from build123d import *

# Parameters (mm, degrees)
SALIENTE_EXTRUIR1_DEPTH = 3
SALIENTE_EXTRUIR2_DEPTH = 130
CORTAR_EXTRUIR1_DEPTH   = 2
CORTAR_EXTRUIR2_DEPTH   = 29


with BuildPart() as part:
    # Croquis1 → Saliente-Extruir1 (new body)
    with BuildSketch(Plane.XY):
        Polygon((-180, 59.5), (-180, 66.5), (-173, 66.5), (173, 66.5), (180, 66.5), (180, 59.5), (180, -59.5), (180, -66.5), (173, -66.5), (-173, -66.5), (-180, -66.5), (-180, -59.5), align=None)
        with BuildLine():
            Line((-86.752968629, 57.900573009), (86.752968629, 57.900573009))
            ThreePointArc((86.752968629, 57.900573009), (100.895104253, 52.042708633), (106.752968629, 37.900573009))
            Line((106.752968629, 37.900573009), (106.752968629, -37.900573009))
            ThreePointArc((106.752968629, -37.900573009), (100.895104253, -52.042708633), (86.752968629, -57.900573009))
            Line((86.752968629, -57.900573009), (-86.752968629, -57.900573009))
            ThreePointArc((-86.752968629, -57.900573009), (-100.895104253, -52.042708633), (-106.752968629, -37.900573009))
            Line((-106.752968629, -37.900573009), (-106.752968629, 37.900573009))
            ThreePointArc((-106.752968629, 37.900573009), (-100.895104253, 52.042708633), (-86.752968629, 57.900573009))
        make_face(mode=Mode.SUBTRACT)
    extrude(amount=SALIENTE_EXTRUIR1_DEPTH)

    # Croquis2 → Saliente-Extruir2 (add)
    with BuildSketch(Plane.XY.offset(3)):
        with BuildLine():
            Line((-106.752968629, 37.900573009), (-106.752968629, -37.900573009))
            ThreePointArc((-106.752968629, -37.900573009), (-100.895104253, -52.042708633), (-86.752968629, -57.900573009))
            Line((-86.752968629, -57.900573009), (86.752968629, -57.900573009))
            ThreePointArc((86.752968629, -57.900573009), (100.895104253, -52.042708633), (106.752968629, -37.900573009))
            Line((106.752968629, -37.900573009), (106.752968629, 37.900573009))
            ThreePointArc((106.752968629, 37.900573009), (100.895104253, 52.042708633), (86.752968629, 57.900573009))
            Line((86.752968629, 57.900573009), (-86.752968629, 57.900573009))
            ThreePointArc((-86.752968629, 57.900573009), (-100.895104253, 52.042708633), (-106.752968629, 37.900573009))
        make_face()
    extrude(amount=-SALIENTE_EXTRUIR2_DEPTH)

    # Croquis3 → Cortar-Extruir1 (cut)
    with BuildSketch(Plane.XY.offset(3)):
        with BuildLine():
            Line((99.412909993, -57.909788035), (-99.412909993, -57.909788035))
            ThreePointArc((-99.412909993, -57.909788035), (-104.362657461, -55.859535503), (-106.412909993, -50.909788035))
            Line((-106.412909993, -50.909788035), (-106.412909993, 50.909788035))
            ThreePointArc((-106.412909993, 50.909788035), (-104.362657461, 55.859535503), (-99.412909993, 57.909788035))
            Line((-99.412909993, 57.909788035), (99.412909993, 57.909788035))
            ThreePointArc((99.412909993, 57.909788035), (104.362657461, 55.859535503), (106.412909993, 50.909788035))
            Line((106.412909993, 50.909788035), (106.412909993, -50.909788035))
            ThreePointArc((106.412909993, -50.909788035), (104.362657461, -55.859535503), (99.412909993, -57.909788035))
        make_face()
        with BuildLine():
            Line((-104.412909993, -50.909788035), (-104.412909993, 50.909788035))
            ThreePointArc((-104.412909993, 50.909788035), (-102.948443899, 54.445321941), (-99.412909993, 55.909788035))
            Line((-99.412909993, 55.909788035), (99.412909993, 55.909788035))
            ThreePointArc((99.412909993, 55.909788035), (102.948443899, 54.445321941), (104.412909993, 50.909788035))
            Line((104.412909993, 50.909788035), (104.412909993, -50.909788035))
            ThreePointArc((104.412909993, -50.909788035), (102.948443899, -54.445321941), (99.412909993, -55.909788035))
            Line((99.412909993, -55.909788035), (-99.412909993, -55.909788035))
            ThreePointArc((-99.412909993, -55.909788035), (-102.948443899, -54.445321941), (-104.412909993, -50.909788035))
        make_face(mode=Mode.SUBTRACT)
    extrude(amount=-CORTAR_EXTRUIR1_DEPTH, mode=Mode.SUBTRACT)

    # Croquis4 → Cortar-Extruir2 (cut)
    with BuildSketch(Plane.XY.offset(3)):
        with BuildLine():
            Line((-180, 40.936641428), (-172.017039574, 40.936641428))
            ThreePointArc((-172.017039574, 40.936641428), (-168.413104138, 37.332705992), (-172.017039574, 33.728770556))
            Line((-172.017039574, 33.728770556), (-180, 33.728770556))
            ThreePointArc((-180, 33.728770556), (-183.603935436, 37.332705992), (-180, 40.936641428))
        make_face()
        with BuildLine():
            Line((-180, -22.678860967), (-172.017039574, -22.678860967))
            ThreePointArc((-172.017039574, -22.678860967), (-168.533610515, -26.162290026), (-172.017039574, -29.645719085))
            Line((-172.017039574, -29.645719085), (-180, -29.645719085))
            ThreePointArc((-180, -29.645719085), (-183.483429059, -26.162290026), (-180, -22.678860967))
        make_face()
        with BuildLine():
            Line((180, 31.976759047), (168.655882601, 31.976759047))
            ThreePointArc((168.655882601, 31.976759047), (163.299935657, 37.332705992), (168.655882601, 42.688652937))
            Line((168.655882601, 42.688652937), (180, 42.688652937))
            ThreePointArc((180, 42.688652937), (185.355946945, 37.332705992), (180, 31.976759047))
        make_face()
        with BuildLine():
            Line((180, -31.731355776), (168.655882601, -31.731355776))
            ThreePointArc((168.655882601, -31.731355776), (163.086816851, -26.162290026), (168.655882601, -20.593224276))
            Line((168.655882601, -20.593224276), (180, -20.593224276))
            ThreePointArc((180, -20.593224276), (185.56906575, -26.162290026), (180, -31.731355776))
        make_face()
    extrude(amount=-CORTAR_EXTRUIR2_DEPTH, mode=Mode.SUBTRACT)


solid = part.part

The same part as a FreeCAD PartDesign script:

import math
import FreeCAD as App
import Part
import Sketcher
Q = App.Units.Quantity

doc = App.newDocument("Part")
body = doc.addObject("PartDesign::Body", "Body")

# Sketch on XY plane
sketch1 = doc.addObject("Sketcher::SketchObject", "Sketch")
body.addObject(sketch1)
sketch1.AttachmentSupport = (doc.XY_Plane, [""])
sketch1.MapMode = "FlatFace"
sketch1.addGeometry([
    Part.LineSegment(App.Vector(-180, 66, 0), App.Vector(-180, -66, 0)),  # 0
    Part.LineSegment(App.Vector(-180, -66, 0), App.Vector(180, -66, 0)),  # 1
    Part.LineSegment(App.Vector(180, -66, 0), App.Vector(180, 66, 0)),  # 2
    Part.LineSegment(App.Vector(180, 66, 0), App.Vector(-180, 66, 0)),  # 3
    Part.LineSegment(App.Vector(-87, 58, 0), App.Vector(87, 58, 0)),  # 4
    Part.ArcOfCircle(Part.Circle(App.Vector(87, 38, 0), App.Vector(0, 0, 1), 20), math.radians(0), math.radians(90)),  # 5
    Part.LineSegment(App.Vector(107, 38, 0), App.Vector(107, -38, 0)),  # 6
    Part.ArcOfCircle(Part.Circle(App.Vector(87, -38, 0), App.Vector(0, 0, 1), 20), math.radians(-90), math.radians(0)),  # 7
    Part.LineSegment(App.Vector(87, -58, 0), App.Vector(-87, -58, 0)),  # 8
    Part.ArcOfCircle(Part.Circle(App.Vector(-87, -38, 0), App.Vector(0, 0, 1), 20), math.radians(180), math.radians(270)),  # 9
    Part.LineSegment(App.Vector(-107, -38, 0), App.Vector(-107, 38, 0)),  # 10
    Part.ArcOfCircle(Part.Circle(App.Vector(-87, 38, 0), App.Vector(0, 0, 1), 20), math.radians(90), math.radians(180)),  # 11
], False)
sketch1.addConstraint([
    Sketcher.Constraint("Coincident", 0, 2, 1, 1),
    Sketcher.Constraint("Coincident", 1, 2, 2, 1),
    Sketcher.Constraint("Coincident", 2, 2, 3, 1),
    Sketcher.Constraint("Coincident", 3, 2, 0, 1),
    Sketcher.Constraint("Tangent", 4, 2, 5, 2),
    Sketcher.Constraint("Tangent", 5, 1, 6, 1),
    Sketcher.Constraint("Tangent", 6, 2, 7, 2),
    Sketcher.Constraint("Tangent", 7, 1, 8, 1),
    Sketcher.Constraint("Tangent", 8, 2, 9, 2),
    Sketcher.Constraint("Tangent", 9, 1, 10, 1),
    Sketcher.Constraint("Tangent", 10, 2, 11, 2),
    Sketcher.Constraint("Tangent", 11, 1, 4, 1),
    Sketcher.Constraint("Vertical", 0),
    Sketcher.Constraint("Horizontal", 1),
    Sketcher.Constraint("Vertical", 2),
    Sketcher.Constraint("Horizontal", 3),
    Sketcher.Constraint("Horizontal", 4),
    Sketcher.Constraint("Vertical", 6),
    Sketcher.Constraint("Horizontal", 8),
    Sketcher.Constraint("Vertical", 10),
    Sketcher.Constraint("Equal", 5, 7),
    Sketcher.Constraint("Equal", 7, 9),
    Sketcher.Constraint("Equal", 9, 11),
    Sketcher.Constraint("Symmetric", 5, 3, 9, 3, -1, 1),
    Sketcher.Constraint("Symmetric", 0, 2, 2, 2, -1, 1),
    Sketcher.Constraint("Radius", 5, Q("20 mm")),
    Sketcher.Constraint("DistanceX", 1, 1, 1, 2, Q("360 mm")),
    Sketcher.Constraint("DistanceY", 0, 2, 0, 1, Q("133 mm")),
    Sketcher.Constraint("DistanceX", 4, 1, 4, 2, Q("173.505937 mm")),
    Sketcher.Constraint("DistanceY", 6, 2, 6, 1, Q("75.801146 mm")),
])
pad1 = doc.addObject("PartDesign::Pad", "Pad")
body.addObject(pad1)
pad1.Profile = sketch1
pad1.Length = 3

# Sketch on XY plane
sketch2 = doc.addObject("Sketcher::SketchObject", "Sketch001")
body.addObject(sketch2)
sketch2.AttachmentSupport = (doc.XY_Plane, [""])
sketch2.MapMode = "FlatFace"
sketch2.AttachmentOffset = App.Placement(App.Vector(0, 0, 3), App.Rotation())
sketch2.addGeometry([
    Part.LineSegment(App.Vector(-107, 38, 0), App.Vector(-107, -38, 0)),  # 0
    Part.ArcOfCircle(Part.Circle(App.Vector(-87, -38, 0), App.Vector(0, 0, 1), 20), math.radians(180), math.radians(270)),  # 1
    Part.LineSegment(App.Vector(-87, -58, 0), App.Vector(87, -58, 0)),  # 2
    Part.ArcOfCircle(Part.Circle(App.Vector(87, -38, 0), App.Vector(0, 0, 1), 20), math.radians(-90), math.radians(0)),  # 3
    Part.LineSegment(App.Vector(107, -38, 0), App.Vector(107, 38, 0)),  # 4
    Part.ArcOfCircle(Part.Circle(App.Vector(87, 38, 0), App.Vector(0, 0, 1), 20), math.radians(0), math.radians(90)),  # 5
    Part.LineSegment(App.Vector(87, 58, 0), App.Vector(-87, 58, 0)),  # 6
    Part.ArcOfCircle(Part.Circle(App.Vector(-87, 38, 0), App.Vector(0, 0, 1), 20), math.radians(90), math.radians(180)),  # 7
], False)
sketch2.addConstraint([
    Sketcher.Constraint("Tangent", 0, 2, 1, 1),
    Sketcher.Constraint("Tangent", 1, 2, 2, 1),
    Sketcher.Constraint("Tangent", 2, 2, 3, 1),
    Sketcher.Constraint("Tangent", 3, 2, 4, 1),
    Sketcher.Constraint("Tangent", 4, 2, 5, 1),
    Sketcher.Constraint("Tangent", 5, 2, 6, 1),
    Sketcher.Constraint("Tangent", 6, 2, 7, 1),
    Sketcher.Constraint("Tangent", 7, 2, 0, 1),
    Sketcher.Constraint("Vertical", 0),
    Sketcher.Constraint("Horizontal", 2),
    Sketcher.Constraint("Vertical", 4),
    Sketcher.Constraint("Horizontal", 6),
    Sketcher.Constraint("Equal", 1, 3),
    Sketcher.Constraint("Equal", 3, 5),
    Sketcher.Constraint("Equal", 5, 7),
    Sketcher.Constraint("Symmetric", 1, 3, 5, 3, -1, 1),
    Sketcher.Constraint("Radius", 1, Q("20 mm")),
    Sketcher.Constraint("DistanceX", 2, 1, 2, 2, Q("173.505937 mm")),
    Sketcher.Constraint("DistanceY", 0, 2, 0, 1, Q("75.801146 mm")),
])
pad2 = doc.addObject("PartDesign::Pad", "Pad001")
body.addObject(pad2)
pad2.Profile = sketch2
pad2.Length = 130
pad2.Reversed = True

# Sketch on XY plane
sketch3 = doc.addObject("Sketcher::SketchObject", "Sketch002")
body.addObject(sketch3)
sketch3.AttachmentSupport = (doc.XY_Plane, [""])
sketch3.MapMode = "FlatFace"
sketch3.AttachmentOffset = App.Placement(App.Vector(0, 0, 3), App.Rotation())
sketch3.addGeometry([
    Part.LineSegment(App.Vector(-99, -58, 0), App.Vector(99, -58, 0)),  # 0
    Part.ArcOfCircle(Part.Circle(App.Vector(99, -51, 0), App.Vector(0, 0, 1), 7), math.radians(-90), math.radians(0)),  # 1
    Part.LineSegment(App.Vector(106, -51, 0), App.Vector(106, 51, 0)),  # 2
    Part.ArcOfCircle(Part.Circle(App.Vector(99, 51, 0), App.Vector(0, 0, 1), 7), math.radians(0), math.radians(90)),  # 3
    Part.LineSegment(App.Vector(99, 58, 0), App.Vector(-99, 58, 0)),  # 4
    Part.ArcOfCircle(Part.Circle(App.Vector(-99, 51, 0), App.Vector(0, 0, 1), 7), math.radians(90), math.radians(180)),  # 5
    Part.LineSegment(App.Vector(-106, 51, 0), App.Vector(-106, -51, 0)),  # 6
    Part.ArcOfCircle(Part.Circle(App.Vector(-99, -51, 0), App.Vector(0, 0, 1), 7), math.radians(-180), math.radians(-90)),  # 7
    Part.LineSegment(App.Vector(-104, -51, 0), App.Vector(-104, 51, 0)),  # 8
    Part.ArcOfCircle(Part.Circle(App.Vector(-99, 51, 0), App.Vector(0, 0, 1), 5), math.radians(90), math.radians(180)),  # 9
    Part.LineSegment(App.Vector(-99, 56, 0), App.Vector(99, 56, 0)),  # 10
    Part.ArcOfCircle(Part.Circle(App.Vector(99, 51, 0), App.Vector(0, 0, 1), 5), math.radians(0), math.radians(90)),  # 11
    Part.LineSegment(App.Vector(104, 51, 0), App.Vector(104, -51, 0)),  # 12
    Part.ArcOfCircle(Part.Circle(App.Vector(99, -51, 0), App.Vector(0, 0, 1), 5), math.radians(-90), math.radians(0)),  # 13
    Part.LineSegment(App.Vector(99, -56, 0), App.Vector(-99, -56, 0)),  # 14
    Part.ArcOfCircle(Part.Circle(App.Vector(-99, -51, 0), App.Vector(0, 0, 1), 5), math.radians(180), math.radians(270)),  # 15
], False)
sketch3.addConstraint([
    Sketcher.Constraint("Tangent", 0, 2, 1, 1),
    Sketcher.Constraint("Tangent", 1, 2, 2, 1),
    Sketcher.Constraint("Tangent", 2, 2, 3, 1),
    Sketcher.Constraint("Tangent", 3, 2, 4, 1),
    Sketcher.Constraint("Tangent", 4, 2, 5, 1),
    Sketcher.Constraint("Tangent", 5, 2, 6, 1),
    Sketcher.Constraint("Tangent", 6, 2, 7, 1),
    Sketcher.Constraint("Tangent", 7, 2, 0, 1),
    Sketcher.Constraint("Tangent", 8, 2, 9, 2),
    Sketcher.Constraint("Tangent", 9, 1, 10, 1),
    Sketcher.Constraint("Tangent", 10, 2, 11, 2),
    Sketcher.Constraint("Tangent", 11, 1, 12, 1),
    Sketcher.Constraint("Tangent", 12, 2, 13, 2),
    Sketcher.Constraint("Tangent", 13, 1, 14, 1),
    Sketcher.Constraint("Tangent", 14, 2, 15, 2),
    Sketcher.Constraint("Tangent", 15, 1, 8, 1),
    Sketcher.Constraint("Horizontal", 0),
    Sketcher.Constraint("Vertical", 2),
    Sketcher.Constraint("Horizontal", 4),
    Sketcher.Constraint("Vertical", 6),
    Sketcher.Constraint("Vertical", 8),
    Sketcher.Constraint("Horizontal", 10),
    Sketcher.Constraint("Vertical", 12),
    Sketcher.Constraint("Horizontal", 14),
    Sketcher.Constraint("Coincident", 9, 3, 5, 3),
    Sketcher.Constraint("Coincident", 11, 3, 3, 3),
    Sketcher.Constraint("Coincident", 13, 3, 1, 3),
    Sketcher.Constraint("Equal", 1, 3),
    Sketcher.Constraint("Equal", 3, 5),
    Sketcher.Constraint("Equal", 5, 7),
    Sketcher.Constraint("Equal", 13, 15),
    Sketcher.Constraint("Symmetric", 1, 3, 5, 3, -1, 1),
    Sketcher.Constraint("Radius", 1, Q("7 mm")),
    Sketcher.Constraint("Radius", 9, Q("5 mm")),
    Sketcher.Constraint("DistanceX", 0, 1, 0, 2, Q("198.82582 mm")),
    Sketcher.Constraint("DistanceY", 2, 1, 2, 2, Q("101.819576 mm")),
])
pocket1 = doc.addObject("PartDesign::Pocket", "Pocket")
body.addObject(pocket1)
pocket1.Profile = sketch3
pocket1.Length = 2

# Sketch on XY plane
sketch4 = doc.addObject("Sketcher::SketchObject", "Sketch003")
body.addObject(sketch4)
sketch4.AttachmentSupport = (doc.XY_Plane, [""])
sketch4.MapMode = "FlatFace"
sketch4.AttachmentOffset = App.Placement(App.Vector(0, 0, 3), App.Rotation())
sketch4.addGeometry([
    Part.LineSegment(App.Vector(-172, 40.9, 0), App.Vector(-180, 40.9, 0)),  # 0
    Part.ArcOfCircle(Part.Circle(App.Vector(-180, 37.3, 0), App.Vector(0, 0, 1), 3.6), math.radians(90), math.radians(270)),  # 1
    Part.LineSegment(App.Vector(-180, 33.7, 0), App.Vector(-172, 33.7, 0)),  # 2
    Part.ArcOfCircle(Part.Circle(App.Vector(-172, 37.3, 0), App.Vector(0, 0, 1), 3.6), math.radians(-90), math.radians(90)),  # 3
    Part.LineSegment(App.Vector(-172, -22.7, 0), App.Vector(-180, -22.7, 0)),  # 4
    Part.ArcOfCircle(Part.Circle(App.Vector(-180, -26.2, 0), App.Vector(0, 0, 1), 3.5), math.radians(90), math.radians(270)),  # 5
    Part.LineSegment(App.Vector(-180, -29.6, 0), App.Vector(-172, -29.6, 0)),  # 6
    Part.ArcOfCircle(Part.Circle(App.Vector(-172, -26.2, 0), App.Vector(0, 0, 1), 3.5), math.radians(-90), math.radians(90)),  # 7
    Part.LineSegment(App.Vector(168.7, 32, 0), App.Vector(180, 32, 0)),  # 8
    Part.ArcOfCircle(Part.Circle(App.Vector(180, 37.3, 0), App.Vector(0, 0, 1), 5.4), math.radians(-90), math.radians(90)),  # 9
    Part.LineSegment(App.Vector(180, 42.7, 0), App.Vector(168.7, 42.7, 0)),  # 10
    Part.ArcOfCircle(Part.Circle(App.Vector(168.7, 37.3, 0), App.Vector(0, 0, 1), 5.4), math.radians(90), math.radians(270)),  # 11
    Part.LineSegment(App.Vector(168.7, -31.7, 0), App.Vector(180, -31.7, 0)),  # 12
    Part.ArcOfCircle(Part.Circle(App.Vector(180, -26.2, 0), App.Vector(0, 0, 1), 5.6), math.radians(-90), math.radians(90)),  # 13
    Part.LineSegment(App.Vector(180, -20.6, 0), App.Vector(168.7, -20.6, 0)),  # 14
    Part.ArcOfCircle(Part.Circle(App.Vector(168.7, -26.2, 0), App.Vector(0, 0, 1), 5.6), math.radians(90), math.radians(270)),  # 15
], False)
sketch4.addConstraint([
    Sketcher.Constraint("Tangent", 0, 2, 1, 1),
    Sketcher.Constraint("Tangent", 1, 2, 2, 1),
    Sketcher.Constraint("Tangent", 2, 2, 3, 1),
    Sketcher.Constraint("Tangent", 3, 2, 0, 1),
    Sketcher.Constraint("Tangent", 4, 2, 5, 1),
    Sketcher.Constraint("Tangent", 5, 2, 6, 1),
    Sketcher.Constraint("Tangent", 6, 2, 7, 1),
    Sketcher.Constraint("Tangent", 7, 2, 4, 1),
    Sketcher.Constraint("Tangent", 8, 2, 9, 1),
    Sketcher.Constraint("Tangent", 9, 2, 10, 1),
    Sketcher.Constraint("Tangent", 10, 2, 11, 1),
    Sketcher.Constraint("Tangent", 11, 2, 8, 1),
    Sketcher.Constraint("Tangent", 12, 2, 13, 1),
    Sketcher.Constraint("Tangent", 13, 2, 14, 1),
    Sketcher.Constraint("Tangent", 14, 2, 15, 1),
    Sketcher.Constraint("Tangent", 15, 2, 12, 1),
    Sketcher.Constraint("Horizontal", 0),
    Sketcher.Constraint("Horizontal", 2),
    Sketcher.Constraint("Horizontal", 4),
    Sketcher.Constraint("Horizontal", 6),
    Sketcher.Constraint("Horizontal", 8),
    Sketcher.Constraint("Horizontal", 10),
    Sketcher.Constraint("Horizontal", 12),
    Sketcher.Constraint("Horizontal", 14),
    Sketcher.Constraint("Symmetric", 1, 3, 9, 3, -2),
    Sketcher.Constraint("Symmetric", 5, 3, 13, 3, -2),
    Sketcher.Constraint("Vertical", 1, 3, 5, 3),
    Sketcher.Constraint("Vertical", 3, 3, 7, 3),
    Sketcher.Constraint("Vertical", 11, 3, 15, 3),
    Sketcher.Constraint("DistanceX", 1, 3, -1, 1, Q("180 mm")),
    Sketcher.Constraint("Radius", 5, Q("3.483429 mm")),
    Sketcher.Constraint("Radius", 1, Q("3.603935 mm")),
    Sketcher.Constraint("Radius", 9, Q("5.355947 mm")),
    Sketcher.Constraint("Radius", 13, Q("5.569066 mm")),
    Sketcher.Constraint("DistanceX", 0, 2, 0, 1, Q("7.98296 mm")),
    Sketcher.Constraint("DistanceX", 8, 1, 8, 2, Q("11.344117 mm")),
    Sketcher.Constraint("DistanceY", 5, 3, -1, 1, Q("26.16229 mm")),
    Sketcher.Constraint("DistanceY", -1, 1, 0, 2, Q("40.936641 mm")),
])
pocket2 = doc.addObject("PartDesign::Pocket", "Pocket001")
body.addObject(pocket2)
pocket2.Profile = sketch4
pocket2.Length = 29

doc.recompute()
